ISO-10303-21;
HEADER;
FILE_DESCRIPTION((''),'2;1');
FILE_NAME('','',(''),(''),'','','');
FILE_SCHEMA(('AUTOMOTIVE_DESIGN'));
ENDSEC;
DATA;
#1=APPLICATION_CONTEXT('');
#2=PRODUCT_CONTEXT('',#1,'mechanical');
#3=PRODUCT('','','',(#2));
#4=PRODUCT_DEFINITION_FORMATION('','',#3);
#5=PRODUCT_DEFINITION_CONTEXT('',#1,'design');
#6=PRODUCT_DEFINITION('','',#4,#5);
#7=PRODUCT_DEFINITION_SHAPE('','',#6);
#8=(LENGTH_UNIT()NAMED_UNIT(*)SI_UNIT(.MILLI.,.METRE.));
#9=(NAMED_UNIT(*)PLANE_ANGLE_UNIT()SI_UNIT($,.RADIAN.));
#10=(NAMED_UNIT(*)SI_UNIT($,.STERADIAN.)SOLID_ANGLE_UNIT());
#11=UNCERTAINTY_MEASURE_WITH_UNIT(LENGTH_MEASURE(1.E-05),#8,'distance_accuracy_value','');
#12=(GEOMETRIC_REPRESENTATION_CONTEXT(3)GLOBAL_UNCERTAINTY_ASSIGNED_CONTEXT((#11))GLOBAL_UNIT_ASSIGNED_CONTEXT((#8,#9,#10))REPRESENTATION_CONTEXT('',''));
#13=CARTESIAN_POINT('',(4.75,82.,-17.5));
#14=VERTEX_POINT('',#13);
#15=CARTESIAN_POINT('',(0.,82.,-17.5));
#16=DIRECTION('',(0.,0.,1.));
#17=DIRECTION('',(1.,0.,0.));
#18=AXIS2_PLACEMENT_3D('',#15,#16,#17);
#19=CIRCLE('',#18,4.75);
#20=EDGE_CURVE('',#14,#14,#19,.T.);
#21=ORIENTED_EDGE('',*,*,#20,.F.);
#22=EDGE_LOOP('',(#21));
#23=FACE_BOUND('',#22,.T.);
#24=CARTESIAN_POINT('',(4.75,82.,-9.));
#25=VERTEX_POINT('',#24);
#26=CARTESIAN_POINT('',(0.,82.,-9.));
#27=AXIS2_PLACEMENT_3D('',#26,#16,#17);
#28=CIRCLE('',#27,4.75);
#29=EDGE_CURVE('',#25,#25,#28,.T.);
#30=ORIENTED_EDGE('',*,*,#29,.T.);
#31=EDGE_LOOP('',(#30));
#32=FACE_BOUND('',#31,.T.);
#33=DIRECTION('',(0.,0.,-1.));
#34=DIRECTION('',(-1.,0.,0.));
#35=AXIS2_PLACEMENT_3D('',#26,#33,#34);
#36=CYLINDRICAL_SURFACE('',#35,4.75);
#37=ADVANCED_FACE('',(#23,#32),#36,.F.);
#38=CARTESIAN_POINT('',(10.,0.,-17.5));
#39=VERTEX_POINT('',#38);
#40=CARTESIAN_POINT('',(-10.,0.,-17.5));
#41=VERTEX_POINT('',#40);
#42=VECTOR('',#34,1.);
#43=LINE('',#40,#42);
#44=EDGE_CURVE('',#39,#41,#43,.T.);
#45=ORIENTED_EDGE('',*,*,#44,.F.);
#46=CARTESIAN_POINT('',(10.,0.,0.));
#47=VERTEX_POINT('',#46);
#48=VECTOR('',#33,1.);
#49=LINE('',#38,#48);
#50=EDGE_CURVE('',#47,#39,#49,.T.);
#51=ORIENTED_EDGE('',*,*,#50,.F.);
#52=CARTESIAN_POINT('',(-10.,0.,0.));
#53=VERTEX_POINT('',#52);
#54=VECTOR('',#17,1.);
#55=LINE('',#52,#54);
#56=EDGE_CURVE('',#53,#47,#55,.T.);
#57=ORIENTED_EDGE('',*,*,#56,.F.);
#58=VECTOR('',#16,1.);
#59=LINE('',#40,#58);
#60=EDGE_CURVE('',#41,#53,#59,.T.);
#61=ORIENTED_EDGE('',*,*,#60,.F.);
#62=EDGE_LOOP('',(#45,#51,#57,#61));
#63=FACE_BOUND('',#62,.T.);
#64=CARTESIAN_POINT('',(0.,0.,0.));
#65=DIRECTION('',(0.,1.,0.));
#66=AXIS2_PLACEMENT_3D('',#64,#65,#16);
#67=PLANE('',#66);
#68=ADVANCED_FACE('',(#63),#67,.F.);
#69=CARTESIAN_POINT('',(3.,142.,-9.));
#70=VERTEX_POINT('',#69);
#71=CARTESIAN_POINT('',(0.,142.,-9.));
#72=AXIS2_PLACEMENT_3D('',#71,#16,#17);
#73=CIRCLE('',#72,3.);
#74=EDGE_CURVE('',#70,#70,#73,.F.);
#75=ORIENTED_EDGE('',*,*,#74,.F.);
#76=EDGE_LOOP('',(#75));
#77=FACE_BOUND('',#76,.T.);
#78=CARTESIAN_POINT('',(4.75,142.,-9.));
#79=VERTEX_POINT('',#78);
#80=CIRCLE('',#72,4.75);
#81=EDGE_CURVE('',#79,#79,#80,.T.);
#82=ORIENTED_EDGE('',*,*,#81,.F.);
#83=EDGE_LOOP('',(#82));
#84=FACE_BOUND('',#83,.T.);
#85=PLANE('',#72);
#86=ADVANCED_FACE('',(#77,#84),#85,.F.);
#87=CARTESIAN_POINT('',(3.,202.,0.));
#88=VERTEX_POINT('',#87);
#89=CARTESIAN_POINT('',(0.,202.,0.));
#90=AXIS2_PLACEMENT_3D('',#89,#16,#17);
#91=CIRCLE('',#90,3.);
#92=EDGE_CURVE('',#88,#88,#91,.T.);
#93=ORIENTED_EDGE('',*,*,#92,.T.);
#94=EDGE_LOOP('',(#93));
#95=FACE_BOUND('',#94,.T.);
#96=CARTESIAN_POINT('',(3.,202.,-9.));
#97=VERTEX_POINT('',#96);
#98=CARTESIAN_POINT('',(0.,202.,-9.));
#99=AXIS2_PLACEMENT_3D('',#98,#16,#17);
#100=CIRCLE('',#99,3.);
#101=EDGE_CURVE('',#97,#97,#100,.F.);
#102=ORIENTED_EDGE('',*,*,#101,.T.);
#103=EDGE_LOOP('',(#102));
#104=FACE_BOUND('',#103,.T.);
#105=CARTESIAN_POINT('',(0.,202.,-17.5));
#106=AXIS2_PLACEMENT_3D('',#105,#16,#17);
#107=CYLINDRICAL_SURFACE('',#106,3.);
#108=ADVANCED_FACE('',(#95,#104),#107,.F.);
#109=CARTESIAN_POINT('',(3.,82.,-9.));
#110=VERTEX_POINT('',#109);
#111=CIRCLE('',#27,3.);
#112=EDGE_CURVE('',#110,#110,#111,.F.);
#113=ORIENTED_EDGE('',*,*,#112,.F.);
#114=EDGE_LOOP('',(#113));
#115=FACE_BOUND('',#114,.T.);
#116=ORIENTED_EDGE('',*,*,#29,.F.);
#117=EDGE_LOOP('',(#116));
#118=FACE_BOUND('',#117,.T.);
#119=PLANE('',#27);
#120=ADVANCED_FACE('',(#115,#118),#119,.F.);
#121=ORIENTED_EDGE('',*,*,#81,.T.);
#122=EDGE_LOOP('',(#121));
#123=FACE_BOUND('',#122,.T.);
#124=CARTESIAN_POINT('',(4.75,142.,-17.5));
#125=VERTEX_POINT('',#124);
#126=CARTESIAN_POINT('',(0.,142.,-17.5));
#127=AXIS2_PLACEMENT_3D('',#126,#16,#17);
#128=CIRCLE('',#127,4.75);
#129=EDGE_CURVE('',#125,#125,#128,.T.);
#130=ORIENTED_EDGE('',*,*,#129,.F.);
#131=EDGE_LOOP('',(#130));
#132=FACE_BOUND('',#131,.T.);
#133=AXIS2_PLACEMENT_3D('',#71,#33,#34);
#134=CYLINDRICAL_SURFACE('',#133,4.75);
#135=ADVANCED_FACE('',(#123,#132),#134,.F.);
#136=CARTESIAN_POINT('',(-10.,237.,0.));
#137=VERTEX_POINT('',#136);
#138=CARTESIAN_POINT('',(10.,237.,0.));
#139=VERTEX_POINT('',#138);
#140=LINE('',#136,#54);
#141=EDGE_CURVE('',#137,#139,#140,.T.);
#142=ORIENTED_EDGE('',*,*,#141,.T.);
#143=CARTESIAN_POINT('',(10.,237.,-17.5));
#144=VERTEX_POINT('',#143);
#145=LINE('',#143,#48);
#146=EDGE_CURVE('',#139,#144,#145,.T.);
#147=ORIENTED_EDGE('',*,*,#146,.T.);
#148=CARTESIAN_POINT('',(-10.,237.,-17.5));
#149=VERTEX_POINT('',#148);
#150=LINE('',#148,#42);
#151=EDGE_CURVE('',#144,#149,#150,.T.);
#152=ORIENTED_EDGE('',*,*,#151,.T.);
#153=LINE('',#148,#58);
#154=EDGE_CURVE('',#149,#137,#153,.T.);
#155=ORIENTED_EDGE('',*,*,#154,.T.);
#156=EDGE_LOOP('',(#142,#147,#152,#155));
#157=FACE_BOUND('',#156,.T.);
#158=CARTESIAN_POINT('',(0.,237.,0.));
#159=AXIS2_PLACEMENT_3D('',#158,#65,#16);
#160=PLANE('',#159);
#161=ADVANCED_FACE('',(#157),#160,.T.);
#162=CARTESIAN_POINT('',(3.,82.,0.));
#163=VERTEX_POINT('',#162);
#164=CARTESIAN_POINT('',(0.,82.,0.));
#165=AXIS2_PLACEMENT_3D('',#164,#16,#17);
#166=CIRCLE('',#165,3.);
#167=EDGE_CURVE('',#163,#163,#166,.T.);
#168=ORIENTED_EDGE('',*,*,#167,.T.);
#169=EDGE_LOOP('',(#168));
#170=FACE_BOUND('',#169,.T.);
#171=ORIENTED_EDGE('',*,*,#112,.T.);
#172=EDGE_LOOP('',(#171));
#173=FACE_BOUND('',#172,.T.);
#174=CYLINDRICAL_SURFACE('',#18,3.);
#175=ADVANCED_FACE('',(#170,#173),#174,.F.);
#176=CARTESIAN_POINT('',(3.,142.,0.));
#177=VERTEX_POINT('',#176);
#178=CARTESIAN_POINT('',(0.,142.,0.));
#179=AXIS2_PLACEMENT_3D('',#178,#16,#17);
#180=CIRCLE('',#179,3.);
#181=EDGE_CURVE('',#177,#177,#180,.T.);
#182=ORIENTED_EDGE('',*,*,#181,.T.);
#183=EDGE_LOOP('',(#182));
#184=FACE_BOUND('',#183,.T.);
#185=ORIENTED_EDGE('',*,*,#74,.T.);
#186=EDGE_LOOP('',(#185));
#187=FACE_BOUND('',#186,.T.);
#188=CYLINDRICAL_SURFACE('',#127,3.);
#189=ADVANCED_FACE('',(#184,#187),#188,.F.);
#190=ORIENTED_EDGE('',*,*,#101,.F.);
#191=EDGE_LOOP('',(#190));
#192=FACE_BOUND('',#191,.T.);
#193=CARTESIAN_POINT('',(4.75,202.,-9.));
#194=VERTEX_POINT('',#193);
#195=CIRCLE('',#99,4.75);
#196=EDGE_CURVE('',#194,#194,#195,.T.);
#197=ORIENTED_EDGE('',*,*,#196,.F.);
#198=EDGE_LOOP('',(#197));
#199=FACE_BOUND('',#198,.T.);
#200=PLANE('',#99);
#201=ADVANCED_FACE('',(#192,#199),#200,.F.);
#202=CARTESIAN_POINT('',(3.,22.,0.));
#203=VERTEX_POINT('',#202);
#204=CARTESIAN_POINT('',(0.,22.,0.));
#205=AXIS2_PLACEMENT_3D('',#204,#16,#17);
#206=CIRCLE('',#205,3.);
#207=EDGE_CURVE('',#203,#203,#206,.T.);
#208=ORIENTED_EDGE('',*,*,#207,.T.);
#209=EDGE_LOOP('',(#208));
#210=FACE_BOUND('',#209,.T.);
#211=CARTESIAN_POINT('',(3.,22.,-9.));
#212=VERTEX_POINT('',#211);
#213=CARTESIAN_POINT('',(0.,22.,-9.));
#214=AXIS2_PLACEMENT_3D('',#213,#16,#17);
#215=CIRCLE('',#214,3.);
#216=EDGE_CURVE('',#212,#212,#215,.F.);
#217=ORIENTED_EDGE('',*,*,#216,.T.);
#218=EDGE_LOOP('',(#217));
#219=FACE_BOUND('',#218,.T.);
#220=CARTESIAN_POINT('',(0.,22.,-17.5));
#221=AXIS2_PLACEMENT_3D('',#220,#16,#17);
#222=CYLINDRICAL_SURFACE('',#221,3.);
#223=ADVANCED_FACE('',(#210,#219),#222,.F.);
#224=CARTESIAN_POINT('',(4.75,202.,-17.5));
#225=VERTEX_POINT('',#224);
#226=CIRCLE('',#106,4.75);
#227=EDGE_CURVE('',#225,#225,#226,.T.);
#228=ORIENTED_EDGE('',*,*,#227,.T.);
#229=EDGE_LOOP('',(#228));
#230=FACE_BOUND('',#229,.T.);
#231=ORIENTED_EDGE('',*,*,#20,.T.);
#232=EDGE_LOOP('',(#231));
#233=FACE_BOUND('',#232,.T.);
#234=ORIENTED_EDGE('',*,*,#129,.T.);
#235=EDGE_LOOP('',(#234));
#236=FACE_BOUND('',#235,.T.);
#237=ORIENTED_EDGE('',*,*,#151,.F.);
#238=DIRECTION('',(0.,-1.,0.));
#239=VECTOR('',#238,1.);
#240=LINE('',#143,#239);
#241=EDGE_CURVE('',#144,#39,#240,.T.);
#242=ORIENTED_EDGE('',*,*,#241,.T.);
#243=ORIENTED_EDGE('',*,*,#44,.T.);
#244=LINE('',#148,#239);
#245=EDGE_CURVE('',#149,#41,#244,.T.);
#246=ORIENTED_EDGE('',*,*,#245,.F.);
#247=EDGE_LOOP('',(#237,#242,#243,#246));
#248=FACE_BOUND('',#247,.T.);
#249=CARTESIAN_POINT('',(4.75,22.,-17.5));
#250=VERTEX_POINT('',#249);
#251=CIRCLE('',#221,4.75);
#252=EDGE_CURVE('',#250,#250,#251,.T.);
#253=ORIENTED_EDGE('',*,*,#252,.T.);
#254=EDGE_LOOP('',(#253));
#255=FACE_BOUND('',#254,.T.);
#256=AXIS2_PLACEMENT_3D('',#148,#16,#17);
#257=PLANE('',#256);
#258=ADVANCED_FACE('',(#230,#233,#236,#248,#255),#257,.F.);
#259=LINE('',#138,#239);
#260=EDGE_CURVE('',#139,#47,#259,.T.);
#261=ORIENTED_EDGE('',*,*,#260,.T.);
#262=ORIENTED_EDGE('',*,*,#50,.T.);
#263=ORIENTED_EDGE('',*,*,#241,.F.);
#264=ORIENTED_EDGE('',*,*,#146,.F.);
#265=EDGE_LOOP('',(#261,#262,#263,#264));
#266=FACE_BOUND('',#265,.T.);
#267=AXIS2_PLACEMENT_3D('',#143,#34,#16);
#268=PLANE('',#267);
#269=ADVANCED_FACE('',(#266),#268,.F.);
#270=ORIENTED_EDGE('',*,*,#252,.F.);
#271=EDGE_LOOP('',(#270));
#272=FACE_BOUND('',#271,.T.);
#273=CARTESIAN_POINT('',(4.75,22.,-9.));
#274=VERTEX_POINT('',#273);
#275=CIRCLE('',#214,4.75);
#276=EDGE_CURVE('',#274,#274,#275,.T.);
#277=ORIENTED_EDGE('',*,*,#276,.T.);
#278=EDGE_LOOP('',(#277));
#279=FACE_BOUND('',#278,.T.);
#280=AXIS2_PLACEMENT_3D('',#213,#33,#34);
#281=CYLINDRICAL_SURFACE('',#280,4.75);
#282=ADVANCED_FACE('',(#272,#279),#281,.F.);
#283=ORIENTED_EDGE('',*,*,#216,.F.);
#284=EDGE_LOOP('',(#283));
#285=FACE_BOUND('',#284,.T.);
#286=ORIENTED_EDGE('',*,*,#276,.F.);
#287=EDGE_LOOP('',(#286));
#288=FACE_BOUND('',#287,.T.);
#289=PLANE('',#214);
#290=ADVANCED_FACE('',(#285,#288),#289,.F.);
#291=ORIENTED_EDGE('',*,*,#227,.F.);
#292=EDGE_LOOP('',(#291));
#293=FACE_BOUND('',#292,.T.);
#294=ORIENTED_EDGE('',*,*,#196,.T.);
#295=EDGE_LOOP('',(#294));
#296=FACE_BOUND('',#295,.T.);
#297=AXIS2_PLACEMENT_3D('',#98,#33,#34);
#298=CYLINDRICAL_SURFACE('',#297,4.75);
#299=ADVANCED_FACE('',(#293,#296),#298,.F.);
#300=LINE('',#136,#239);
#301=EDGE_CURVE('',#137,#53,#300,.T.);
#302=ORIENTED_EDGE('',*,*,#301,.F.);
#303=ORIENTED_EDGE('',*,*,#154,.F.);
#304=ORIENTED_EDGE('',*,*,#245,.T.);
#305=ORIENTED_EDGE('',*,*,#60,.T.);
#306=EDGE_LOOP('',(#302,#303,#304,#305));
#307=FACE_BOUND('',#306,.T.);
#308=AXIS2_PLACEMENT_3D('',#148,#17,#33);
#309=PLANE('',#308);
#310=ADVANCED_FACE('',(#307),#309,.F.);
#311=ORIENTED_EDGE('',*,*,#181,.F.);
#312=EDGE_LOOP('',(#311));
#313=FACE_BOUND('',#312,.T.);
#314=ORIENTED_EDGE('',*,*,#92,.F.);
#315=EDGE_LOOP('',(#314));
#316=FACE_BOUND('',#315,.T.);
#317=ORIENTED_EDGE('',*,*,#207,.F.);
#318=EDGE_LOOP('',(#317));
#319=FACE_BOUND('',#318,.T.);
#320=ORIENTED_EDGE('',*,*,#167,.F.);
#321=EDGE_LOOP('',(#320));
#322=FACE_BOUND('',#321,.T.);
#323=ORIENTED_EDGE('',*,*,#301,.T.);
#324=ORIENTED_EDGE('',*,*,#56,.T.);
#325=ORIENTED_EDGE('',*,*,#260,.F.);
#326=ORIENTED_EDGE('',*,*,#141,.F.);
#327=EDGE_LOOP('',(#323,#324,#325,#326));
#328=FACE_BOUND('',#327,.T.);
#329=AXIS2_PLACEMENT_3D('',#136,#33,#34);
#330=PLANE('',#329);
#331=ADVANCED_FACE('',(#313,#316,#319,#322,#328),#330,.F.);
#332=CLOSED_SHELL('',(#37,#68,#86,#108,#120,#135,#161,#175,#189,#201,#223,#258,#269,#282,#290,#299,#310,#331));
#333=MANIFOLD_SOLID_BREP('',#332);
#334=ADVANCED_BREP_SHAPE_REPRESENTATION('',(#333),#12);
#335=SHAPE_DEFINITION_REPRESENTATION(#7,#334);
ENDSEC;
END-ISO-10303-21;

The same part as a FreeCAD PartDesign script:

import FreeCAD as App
import Part
import Sketcher

V = App.Vector

doc = App.newDocument("Part")
body = doc.addObject("PartDesign::Body", "Body")

sketch1 = body.newObject("Sketcher::SketchObject", "Sketch")
sketch1.AttachmentSupport = (doc.getObject("XZ_Plane"), [""])
sketch1.MapMode = "FlatFace"
sketch1.addGeometry(Part.LineSegment(V(-10, -18, 0), V(-10, 0, 0)), False)
sketch1.addGeometry(Part.LineSegment(V(-10, 0, 0), V(10, 0, 0)), False)
sketch1.addGeometry(Part.LineSegment(V(10, 0, 0), V(10, -18, 0)), False)
sketch1.addGeometry(Part.LineSegment(V(10, -18, 0), V(-10, -18, 0)), False)
sketch1.addConstraint(Sketcher.Constraint("Coincident", 0, 2, 1, 1))
sketch1.addConstraint(Sketcher.Constraint("Coincident", 1, 2, 2, 1))
sketch1.addConstraint(Sketcher.Constraint("Coincident", 2, 2, 3, 1))
sketch1.addConstraint(Sketcher.Constraint("Coincident", 3, 2, 0, 1))
sketch1.addConstraint(Sketcher.Constraint("Vertical", 0))
sketch1.addConstraint(Sketcher.Constraint("Horizontal", 1))
sketch1.addConstraint(Sketcher.Constraint("Vertical", 2))
sketch1.addConstraint(Sketcher.Constraint("Horizontal", 3))
sketch1.addConstraint(Sketcher.Constraint("Symmetric", 0, 2, 1, 2, -1, 1))
sketch1.addConstraint(Sketcher.Constraint("DistanceX", 1, 1, 1, 2, 20.0))
sketch1.addConstraint(Sketcher.Constraint("DistanceY", 0, 1, 0, 2, 17.5))
pad1 = body.newObject("PartDesign::Pad", "Pad")
pad1.Profile = sketch1
pad1.Length = 237
pad1.Reversed = True

sketch2 = body.newObject("Sketcher::SketchObject", "Sketch001")
sketch2.AttachmentSupport = (doc.getObject("XY_Plane"), [""])
sketch2.MapMode = "FlatFace"
sketch2.addGeometry(Part.Circle(V(0, 22, 0), V(0, 0, 1), 3), False)
sketch2.addGeometry(Part.Circle(V(0, 82, 0), V(0, 0, 1), 3), False)
sketch2.addGeometry(Part.Circle(V(0, 142, 0), V(0, 0, 1), 3), False)
sketch2.addGeometry(Part.Circle(V(0, 202, 0), V(0, 0, 1), 3), False)
sketch2.addGeometry(Part.Circle(V(0, 262, 0), V(0, 0, 1), 3), False)
sketch2.addConstraint(Sketcher.Constraint("Equal", 0, 1))
sketch2.addConstraint(Sketcher.Constraint("Equal", 1, 2))
sketch2.addConstraint(Sketcher.Constraint("Equal", 2, 3))
sketch2.addConstraint(Sketcher.Constraint("Equal", 3, 4))
sketch2.addConstraint(Sketcher.Constraint("PointOnObject", 0, 3, -2))
sketch2.addConstraint(Sketcher.Constraint("PointOnObject", 1, 3, -2))
sketch2.addConstraint(Sketcher.Constraint("PointOnObject", 2, 3, -2))
sketch2.addConstraint(Sketcher.Constraint("PointOnObject", 3, 3, -2))
sketch2.addConstraint(Sketcher.Constraint("PointOnObject", 4, 3, -2))
sketch2.addConstraint(Sketcher.Constraint("Diameter", 0, 6.0))
sketch2.addConstraint(Sketcher.Constraint("DistanceY", -1, 1, 0, 3, 22.0))
sketch2.addConstraint(Sketcher.Constraint("DistanceY", -1, 1, 1, 3, 82.0))
sketch2.addConstraint(Sketcher.Constraint("DistanceY", -1, 1, 2, 3, 142.0))
sketch2.addConstraint(Sketcher.Constraint("DistanceY", -1, 1, 3, 3, 202.0))
sketch2.addConstraint(Sketcher.Constraint("DistanceY", -1, 1, 4, 3, 262.0))
pocket1 = body.newObject("PartDesign::Pocket", "Pocket")
pocket1.Profile = sketch2
pocket1.Type = "ThroughAll"

sketch3 = body.newObject("Sketcher::SketchObject", "Sketch002")
sketch3.AttachmentSupport = (doc.getObject("XY_Plane"), [""])
sketch3.MapMode = "FlatFace"
sketch3.AttachmentOffset = App.Placement(V(0, 0, -17.5), App.Rotation())
sketch3.addGeometry(Part.Circle(V(0, 22, 0), V(0, 0, 1), 4.8), False)
sketch3.addGeometry(Part.Circle(V(0, 82, 0), V(0, 0, 1), 4.8), False)
sketch3.addGeometry(Part.Circle(V(0, 142, 0), V(0, 0, 1), 4.8), False)
sketch3.addGeometry(Part.Circle(V(0, 202, 0), V(0, 0, 1), 4.8), False)
sketch3.addGeometry(Part.Circle(V(0, 262, 0), V(0, 0, 1), 4.8), False)
sketch3.addConstraint(Sketcher.Constraint("Equal", 0, 1))
sketch3.addConstraint(Sketcher.Constraint("Equal", 1, 2))
sketch3.addConstraint(Sketcher.Constraint("Equal", 2, 3))
sketch3.addConstraint(Sketcher.Constraint("Equal", 3, 4))
sketch3.addConstraint(Sketcher.Constraint("PointOnObject", 0, 3, -2))
sketch3.addConstraint(Sketcher.Constraint("PointOnObject", 1, 3, -2))
sketch3.addConstraint(Sketcher.Constraint("PointOnObject", 2, 3, -2))
sketch3.addConstraint(Sketcher.Constraint("PointOnObject", 3, 3, -2))
sketch3.addConstraint(Sketcher.Constraint("PointOnObject", 4, 3, -2))
sketch3.addConstraint(Sketcher.Constraint("Diameter", 0, 9.5))
sketch3.addConstraint(Sketcher.Constraint("DistanceY", -1, 1, 0, 3, 22.0))
sketch3.addConstraint(Sketcher.Constraint("DistanceY", -1, 1, 1, 3, 82.0))
sketch3.addConstraint(Sketcher.Constraint("DistanceY", -1, 1, 2, 3, 142.0))
sketch3.addConstraint(Sketcher.Constraint("DistanceY", -1, 1, 3, 3, 202.0))
sketch3.addConstraint(Sketcher.Constraint("DistanceY", -1, 1, 4, 3, 262.0))
pocket2 = body.newObject("PartDesign::Pocket", "Pocket001")
pocket2.Profile = sketch3
pocket2.Length = 8.5
pocket2.Reversed = True

doc.recompute()
